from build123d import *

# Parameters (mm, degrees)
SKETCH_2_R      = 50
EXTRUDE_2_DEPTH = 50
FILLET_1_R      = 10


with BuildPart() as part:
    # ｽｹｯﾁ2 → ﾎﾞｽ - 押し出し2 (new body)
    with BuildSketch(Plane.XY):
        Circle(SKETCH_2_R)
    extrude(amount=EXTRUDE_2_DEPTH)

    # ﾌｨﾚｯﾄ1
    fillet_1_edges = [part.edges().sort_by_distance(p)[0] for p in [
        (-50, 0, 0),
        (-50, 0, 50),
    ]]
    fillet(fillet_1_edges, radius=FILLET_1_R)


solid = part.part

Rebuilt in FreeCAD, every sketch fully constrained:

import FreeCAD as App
import Part
import Sketcher


def edges_at(feature, points):
    """Names of the edges that pass closest to the given points."""
    edges = feature.Shape.Edges
    near = lambda p: min(range(len(edges)), key=lambda i: edges[i].distToShape(Part.Vertex(*p))[0])
    return sorted({f"Edge{near(p) + 1}" for p in points})

doc = App.newDocument("Part")
params = doc.addObject("Spreadsheet::Sheet", "Params")
for row, (alias, value) in enumerate([
    ("sketch1_diameter", "100 mm"),
    ("pad1_length", "50 mm"),
    ("fillet_radius", "10 mm"),
], start=1):
    params.set(f"A{row}", alias)
    params.set(f"B{row}", "=" + value)
    params.setAlias(f"B{row}", alias)

body = doc.addObject("PartDesign::Body", "Body")

sketch1 = body.newObject("Sketcher::SketchObject", "Sketch")
sketch1.AttachmentSupport = (doc.getObject("XY_Plane"), [""])
sketch1.MapMode = "FlatFace"
sketch1.addGeometry(Part.Circle(App.Vector(0, 0, 0), App.Vector(0, 0, 1), 50), False)
sketch1.addConstraint(Sketcher.Constraint("Coincident", 0, 3, -1, 1))
sketch1.addConstraint(Sketcher.Constraint("Diameter", 0, 100.0))
sketch1.setExpression("Constraints[1]", "Params.sketch1_diameter")
pad1 = body.newObject("PartDesign::Pad", "Pad")
pad1.Profile = sketch1
pad1.setExpression("Length", "Params.pad1_length")
doc.recompute()

fillet = body.newObject("PartDesign::Fillet", "Fillet")
fillet.Base = (pad1, edges_at(pad1, [(-50, 0, 0), (-50, 0, 50)]))
fillet.setExpression("Radius", "Params.fillet_radius")

doc.recompute()
